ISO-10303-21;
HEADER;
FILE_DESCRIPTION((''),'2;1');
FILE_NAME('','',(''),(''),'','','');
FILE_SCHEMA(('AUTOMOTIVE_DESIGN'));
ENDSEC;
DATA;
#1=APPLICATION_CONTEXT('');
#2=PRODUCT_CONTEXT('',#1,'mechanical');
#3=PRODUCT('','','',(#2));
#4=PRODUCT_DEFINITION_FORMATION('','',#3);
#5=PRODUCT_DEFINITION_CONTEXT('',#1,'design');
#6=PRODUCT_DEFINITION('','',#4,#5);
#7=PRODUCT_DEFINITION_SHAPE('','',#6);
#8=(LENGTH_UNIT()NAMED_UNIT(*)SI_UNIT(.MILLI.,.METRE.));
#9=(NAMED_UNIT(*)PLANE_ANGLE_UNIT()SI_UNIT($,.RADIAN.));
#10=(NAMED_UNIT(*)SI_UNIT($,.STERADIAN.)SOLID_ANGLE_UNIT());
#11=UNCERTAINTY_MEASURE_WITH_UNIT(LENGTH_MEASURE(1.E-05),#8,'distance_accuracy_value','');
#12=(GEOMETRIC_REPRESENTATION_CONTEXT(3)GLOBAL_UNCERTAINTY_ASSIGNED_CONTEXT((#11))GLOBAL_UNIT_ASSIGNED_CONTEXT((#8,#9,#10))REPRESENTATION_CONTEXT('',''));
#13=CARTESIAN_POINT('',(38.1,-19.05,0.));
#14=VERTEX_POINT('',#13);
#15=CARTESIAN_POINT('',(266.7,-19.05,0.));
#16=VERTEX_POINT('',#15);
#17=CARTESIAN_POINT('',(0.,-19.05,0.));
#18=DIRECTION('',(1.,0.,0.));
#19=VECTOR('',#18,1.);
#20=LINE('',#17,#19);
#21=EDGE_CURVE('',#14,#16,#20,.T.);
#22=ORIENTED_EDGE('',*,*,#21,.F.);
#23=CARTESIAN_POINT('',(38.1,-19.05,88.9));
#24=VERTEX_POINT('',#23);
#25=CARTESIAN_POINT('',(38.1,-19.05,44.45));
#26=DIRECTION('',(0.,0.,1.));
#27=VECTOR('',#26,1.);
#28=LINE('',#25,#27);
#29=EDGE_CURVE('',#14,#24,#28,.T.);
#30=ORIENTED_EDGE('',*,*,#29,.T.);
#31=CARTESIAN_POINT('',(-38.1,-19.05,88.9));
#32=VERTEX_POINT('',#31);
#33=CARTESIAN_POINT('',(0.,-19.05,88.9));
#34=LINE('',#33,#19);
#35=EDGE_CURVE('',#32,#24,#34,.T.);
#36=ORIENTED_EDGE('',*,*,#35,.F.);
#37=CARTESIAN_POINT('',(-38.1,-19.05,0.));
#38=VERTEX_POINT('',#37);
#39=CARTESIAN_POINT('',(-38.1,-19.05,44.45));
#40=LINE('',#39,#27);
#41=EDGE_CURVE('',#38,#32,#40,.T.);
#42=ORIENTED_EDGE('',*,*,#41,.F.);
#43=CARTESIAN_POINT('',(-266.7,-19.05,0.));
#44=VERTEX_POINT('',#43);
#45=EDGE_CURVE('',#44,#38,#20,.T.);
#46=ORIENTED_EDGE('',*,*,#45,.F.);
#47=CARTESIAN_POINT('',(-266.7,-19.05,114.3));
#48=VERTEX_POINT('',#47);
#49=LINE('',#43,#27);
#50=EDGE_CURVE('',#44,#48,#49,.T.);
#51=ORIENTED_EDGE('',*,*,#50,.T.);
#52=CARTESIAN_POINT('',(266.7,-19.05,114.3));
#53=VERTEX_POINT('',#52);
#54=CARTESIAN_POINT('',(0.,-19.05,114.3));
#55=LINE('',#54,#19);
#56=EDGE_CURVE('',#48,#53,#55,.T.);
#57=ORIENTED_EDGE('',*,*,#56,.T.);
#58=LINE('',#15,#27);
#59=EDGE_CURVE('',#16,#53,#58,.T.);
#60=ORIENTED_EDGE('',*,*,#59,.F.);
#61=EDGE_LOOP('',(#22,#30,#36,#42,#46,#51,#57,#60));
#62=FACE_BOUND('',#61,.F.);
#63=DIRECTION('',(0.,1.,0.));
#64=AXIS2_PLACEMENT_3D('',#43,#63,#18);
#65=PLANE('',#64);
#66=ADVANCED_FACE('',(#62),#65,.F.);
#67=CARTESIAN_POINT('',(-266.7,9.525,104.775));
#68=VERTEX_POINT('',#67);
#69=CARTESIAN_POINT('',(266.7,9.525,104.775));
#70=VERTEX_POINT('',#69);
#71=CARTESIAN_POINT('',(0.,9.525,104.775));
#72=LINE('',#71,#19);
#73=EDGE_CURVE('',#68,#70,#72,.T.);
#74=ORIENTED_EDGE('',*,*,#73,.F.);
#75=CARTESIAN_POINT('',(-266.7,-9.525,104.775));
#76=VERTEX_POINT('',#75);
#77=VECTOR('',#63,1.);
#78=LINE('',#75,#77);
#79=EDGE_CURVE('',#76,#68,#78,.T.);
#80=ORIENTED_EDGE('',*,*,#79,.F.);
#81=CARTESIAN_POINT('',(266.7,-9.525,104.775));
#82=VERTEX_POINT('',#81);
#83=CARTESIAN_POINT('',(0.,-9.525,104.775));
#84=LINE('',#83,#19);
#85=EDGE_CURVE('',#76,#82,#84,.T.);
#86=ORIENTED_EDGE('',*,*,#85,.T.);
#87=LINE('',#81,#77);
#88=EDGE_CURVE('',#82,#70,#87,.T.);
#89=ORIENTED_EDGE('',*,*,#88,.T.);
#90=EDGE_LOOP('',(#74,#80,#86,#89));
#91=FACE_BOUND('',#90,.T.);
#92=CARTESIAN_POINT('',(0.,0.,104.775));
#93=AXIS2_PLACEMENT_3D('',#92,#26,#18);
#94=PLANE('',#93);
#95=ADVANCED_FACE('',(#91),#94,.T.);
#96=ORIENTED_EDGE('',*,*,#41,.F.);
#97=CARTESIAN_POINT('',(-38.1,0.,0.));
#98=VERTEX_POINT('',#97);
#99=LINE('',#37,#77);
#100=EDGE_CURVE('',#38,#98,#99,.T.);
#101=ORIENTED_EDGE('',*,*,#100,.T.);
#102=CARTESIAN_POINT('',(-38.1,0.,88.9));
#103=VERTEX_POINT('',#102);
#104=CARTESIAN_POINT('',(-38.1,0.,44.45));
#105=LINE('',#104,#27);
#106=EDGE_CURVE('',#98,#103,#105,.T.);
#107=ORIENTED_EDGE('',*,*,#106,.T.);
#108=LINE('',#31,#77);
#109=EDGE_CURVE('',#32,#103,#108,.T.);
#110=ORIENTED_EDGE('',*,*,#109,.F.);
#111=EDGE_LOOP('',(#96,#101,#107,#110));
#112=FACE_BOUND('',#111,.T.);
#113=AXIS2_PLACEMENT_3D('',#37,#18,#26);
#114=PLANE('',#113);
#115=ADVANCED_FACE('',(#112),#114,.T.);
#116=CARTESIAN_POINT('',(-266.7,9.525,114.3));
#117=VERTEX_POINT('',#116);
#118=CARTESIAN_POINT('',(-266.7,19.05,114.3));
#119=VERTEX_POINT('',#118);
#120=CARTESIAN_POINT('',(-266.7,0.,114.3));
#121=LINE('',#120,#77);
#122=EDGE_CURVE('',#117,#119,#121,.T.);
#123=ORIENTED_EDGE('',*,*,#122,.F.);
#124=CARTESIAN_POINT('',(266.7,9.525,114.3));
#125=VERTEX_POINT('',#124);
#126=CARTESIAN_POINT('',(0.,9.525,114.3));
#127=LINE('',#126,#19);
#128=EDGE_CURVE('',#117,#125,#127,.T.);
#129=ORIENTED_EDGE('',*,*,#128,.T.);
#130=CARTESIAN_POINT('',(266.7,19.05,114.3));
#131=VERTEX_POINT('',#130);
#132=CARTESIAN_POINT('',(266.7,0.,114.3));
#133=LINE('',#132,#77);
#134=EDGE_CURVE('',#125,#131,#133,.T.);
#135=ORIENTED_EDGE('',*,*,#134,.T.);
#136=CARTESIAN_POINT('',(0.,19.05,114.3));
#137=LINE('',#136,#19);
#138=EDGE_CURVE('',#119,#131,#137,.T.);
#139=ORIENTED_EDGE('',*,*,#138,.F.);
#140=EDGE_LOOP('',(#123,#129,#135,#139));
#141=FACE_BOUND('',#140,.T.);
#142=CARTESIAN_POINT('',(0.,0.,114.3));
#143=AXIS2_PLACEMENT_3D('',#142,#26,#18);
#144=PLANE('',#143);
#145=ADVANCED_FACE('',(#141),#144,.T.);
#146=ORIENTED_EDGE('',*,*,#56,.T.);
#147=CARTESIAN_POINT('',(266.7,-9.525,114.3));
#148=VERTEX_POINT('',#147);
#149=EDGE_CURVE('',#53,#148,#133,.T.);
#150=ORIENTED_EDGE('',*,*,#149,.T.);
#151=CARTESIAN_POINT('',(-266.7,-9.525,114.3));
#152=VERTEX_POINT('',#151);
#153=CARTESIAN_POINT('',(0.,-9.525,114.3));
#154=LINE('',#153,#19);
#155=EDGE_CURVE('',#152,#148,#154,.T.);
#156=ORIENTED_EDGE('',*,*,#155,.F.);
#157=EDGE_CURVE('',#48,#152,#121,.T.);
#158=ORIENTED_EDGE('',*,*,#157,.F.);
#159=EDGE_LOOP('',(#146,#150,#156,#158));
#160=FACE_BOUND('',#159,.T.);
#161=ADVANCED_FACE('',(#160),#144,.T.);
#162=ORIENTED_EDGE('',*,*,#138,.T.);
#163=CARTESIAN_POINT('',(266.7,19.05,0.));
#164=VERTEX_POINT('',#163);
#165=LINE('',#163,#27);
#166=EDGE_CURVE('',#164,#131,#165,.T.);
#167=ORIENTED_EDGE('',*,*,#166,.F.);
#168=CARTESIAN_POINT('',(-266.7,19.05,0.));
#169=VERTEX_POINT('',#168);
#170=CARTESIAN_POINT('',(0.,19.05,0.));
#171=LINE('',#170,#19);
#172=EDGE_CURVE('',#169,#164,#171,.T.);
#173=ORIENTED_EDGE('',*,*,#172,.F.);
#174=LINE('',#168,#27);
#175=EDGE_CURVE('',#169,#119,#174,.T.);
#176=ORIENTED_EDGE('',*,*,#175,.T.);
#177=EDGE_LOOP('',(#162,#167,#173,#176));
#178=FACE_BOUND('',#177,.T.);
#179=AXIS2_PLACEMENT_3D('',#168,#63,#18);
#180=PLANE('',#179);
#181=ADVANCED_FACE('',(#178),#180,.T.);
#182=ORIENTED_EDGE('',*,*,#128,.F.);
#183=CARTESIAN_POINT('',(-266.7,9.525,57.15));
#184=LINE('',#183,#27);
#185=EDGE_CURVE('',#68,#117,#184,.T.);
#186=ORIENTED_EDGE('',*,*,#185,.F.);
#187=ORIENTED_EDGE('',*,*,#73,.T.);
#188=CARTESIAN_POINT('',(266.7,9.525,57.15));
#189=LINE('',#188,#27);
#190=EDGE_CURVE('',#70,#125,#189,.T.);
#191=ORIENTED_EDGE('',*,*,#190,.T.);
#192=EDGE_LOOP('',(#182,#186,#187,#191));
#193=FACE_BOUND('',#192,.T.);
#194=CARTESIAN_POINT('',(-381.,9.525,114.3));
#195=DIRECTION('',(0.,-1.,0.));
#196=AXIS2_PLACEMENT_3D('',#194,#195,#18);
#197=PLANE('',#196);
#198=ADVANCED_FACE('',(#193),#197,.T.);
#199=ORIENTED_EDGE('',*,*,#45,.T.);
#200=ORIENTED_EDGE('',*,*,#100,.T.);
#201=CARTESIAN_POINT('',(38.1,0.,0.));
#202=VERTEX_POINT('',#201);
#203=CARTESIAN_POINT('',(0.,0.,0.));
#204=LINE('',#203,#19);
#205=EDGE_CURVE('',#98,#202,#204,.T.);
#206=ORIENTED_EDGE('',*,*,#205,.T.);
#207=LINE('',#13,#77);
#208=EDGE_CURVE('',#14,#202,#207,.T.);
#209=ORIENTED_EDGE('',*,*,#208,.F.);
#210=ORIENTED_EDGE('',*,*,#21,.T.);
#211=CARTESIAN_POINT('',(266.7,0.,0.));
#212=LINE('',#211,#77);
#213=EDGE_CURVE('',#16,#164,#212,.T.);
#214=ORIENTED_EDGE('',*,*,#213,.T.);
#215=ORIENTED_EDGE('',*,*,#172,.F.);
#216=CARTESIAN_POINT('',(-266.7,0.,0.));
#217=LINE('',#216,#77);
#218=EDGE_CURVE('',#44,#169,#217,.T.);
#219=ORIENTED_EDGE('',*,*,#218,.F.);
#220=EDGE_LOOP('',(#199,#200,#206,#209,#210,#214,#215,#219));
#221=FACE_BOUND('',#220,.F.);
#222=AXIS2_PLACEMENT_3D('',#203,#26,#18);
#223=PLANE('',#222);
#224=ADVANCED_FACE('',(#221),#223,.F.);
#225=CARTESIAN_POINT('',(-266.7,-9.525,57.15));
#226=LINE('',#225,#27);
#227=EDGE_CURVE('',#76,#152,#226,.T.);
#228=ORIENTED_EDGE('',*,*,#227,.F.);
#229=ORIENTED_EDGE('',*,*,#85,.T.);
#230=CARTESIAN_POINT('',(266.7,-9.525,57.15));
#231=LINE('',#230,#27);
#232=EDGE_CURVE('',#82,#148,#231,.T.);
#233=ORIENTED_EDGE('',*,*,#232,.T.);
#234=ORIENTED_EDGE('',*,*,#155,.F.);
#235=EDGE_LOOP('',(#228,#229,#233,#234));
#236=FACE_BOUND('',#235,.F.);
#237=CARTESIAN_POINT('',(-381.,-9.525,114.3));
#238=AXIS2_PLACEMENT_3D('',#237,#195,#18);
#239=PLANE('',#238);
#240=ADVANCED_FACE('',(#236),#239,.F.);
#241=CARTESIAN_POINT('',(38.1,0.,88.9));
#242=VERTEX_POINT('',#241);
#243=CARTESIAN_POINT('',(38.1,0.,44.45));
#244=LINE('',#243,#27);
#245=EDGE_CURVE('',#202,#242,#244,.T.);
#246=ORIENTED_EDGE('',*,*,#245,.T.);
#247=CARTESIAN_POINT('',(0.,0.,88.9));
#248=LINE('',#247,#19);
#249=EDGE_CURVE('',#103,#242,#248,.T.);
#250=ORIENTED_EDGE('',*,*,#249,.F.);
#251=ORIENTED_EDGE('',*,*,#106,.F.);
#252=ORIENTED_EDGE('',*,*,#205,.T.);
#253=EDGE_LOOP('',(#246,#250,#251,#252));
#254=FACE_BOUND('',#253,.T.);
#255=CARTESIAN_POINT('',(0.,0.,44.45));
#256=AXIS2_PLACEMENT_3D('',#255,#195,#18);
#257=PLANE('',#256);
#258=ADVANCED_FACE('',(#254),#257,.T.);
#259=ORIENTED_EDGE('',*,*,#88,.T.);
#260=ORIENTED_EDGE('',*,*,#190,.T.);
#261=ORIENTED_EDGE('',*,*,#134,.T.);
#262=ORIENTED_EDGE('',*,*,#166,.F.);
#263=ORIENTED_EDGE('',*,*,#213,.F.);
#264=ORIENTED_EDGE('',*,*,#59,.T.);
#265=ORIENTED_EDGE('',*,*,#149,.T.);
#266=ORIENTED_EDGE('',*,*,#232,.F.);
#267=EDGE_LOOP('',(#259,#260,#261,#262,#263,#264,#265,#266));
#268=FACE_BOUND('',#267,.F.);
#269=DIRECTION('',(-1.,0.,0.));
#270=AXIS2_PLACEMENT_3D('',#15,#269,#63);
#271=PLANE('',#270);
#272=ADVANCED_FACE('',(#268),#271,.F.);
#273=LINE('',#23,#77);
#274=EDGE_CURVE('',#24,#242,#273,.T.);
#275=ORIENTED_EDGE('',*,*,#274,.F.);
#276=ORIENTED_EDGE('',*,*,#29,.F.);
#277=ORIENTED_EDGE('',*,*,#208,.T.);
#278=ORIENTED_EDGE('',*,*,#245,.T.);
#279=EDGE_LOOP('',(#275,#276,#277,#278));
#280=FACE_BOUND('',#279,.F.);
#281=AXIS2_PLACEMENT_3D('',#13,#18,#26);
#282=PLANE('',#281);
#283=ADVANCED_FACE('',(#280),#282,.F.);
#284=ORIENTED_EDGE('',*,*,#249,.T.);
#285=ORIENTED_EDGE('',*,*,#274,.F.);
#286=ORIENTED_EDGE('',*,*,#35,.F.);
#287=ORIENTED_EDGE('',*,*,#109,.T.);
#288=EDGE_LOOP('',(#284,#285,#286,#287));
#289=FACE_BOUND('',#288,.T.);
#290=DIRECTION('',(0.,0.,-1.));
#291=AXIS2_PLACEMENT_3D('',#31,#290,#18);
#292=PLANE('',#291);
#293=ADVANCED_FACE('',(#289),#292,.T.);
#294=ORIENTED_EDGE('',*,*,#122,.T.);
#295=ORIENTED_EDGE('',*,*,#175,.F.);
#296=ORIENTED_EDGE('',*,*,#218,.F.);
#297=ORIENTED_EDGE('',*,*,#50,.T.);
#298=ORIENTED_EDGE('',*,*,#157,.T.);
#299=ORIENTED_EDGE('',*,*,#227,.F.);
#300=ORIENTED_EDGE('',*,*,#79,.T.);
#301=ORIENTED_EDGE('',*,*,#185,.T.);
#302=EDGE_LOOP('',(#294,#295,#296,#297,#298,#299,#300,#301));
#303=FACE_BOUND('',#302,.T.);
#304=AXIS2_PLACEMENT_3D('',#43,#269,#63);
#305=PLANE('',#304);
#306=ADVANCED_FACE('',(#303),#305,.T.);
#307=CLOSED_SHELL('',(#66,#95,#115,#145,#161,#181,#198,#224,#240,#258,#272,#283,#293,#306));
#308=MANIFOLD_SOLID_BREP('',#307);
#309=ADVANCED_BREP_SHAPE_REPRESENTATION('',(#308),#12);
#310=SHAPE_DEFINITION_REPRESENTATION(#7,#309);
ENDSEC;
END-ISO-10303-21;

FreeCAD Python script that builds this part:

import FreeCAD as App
import Part
import Sketcher
from FreeCAD import Vector
Q = App.Units.Quantity

doc = App.newDocument("Part")
params = doc.addObject("Spreadsheet::Sheet", "Params")
for row, (alias, value) in enumerate([
    ("sketch1_width", "21 in"),
    ("sketch1_height", "1.5 in"),
    ("pad1_length", "4.5 in"),
    ("sketch2_width", "30 in"),
    ("sketch2_height", "0.75 in"),
    ("pocket1_length", "0.375 in"),
    ("sketch3_width", "3 in"),
    ("sketch3_height", "3.5 in"),
    ("pocket2_length", "0.75 in"),
], start=1):
    params.set(f"A{row}", alias)
    params.set(f"B{row}", "=" + value)
    params.setAlias(f"B{row}", alias)

body = doc.addObject("PartDesign::Body", "Body")

# Sketch on XY plane
sketch1 = body.newObject("Sketcher::SketchObject", "Sketch")
sketch1.AttachmentSupport = (doc.getObject("XY_Plane"), [""])
sketch1.MapMode = "FlatFace"
sketch1.addGeometry(Part.LineSegment(Vector(-267, 19, 0), Vector(-267, -19, 0)), False)
sketch1.addGeometry(Part.LineSegment(Vector(-267, -19, 0), Vector(267, -19, 0)), False)
sketch1.addGeometry(Part.LineSegment(Vector(267, -19, 0), Vector(267, 19, 0)), False)
sketch1.addGeometry(Part.LineSegment(Vector(267, 19, 0), Vector(-267, 19, 0)), False)
sketch1.addConstraint(Sketcher.Constraint("Coincident", 0, 2, 1, 1))
sketch1.addConstraint(Sketcher.Constraint("Coincident", 1, 2, 2, 1))
sketch1.addConstraint(Sketcher.Constraint("Coincident", 2, 2, 3, 1))
sketch1.addConstraint(Sketcher.Constraint("Coincident", 3, 2, 0, 1))
sketch1.addConstraint(Sketcher.Constraint("Vertical", 0))
sketch1.addConstraint(Sketcher.Constraint("Horizontal", 1))
sketch1.addConstraint(Sketcher.Constraint("Vertical", 2))
sketch1.addConstraint(Sketcher.Constraint("Horizontal", 3))
sketch1.addConstraint(Sketcher.Constraint("Symmetric", 0, 2, 2, 2, -1, 1))
sketch1.addConstraint(Sketcher.Constraint("DistanceX", 1, 1, 1, 2, Q("21 in")))
sketch1.addConstraint(Sketcher.Constraint("DistanceY", 0, 2, 0, 1, Q("1.5 in")))
sketch1.setExpression("Constraints[9]", "Params.sketch1_width")
sketch1.setExpression("Constraints[10]", "Params.sketch1_height")
pad1 = body.newObject("PartDesign::Pad", "Pad")
pad1.Profile = sketch1
pad1.setExpression("Length", "Params.pad1_length")

# Sketch on XY plane
sketch2 = body.newObject("Sketcher::SketchObject", "Sketch001")
sketch2.AttachmentSupport = (doc.getObject("XY_Plane"), [""])
sketch2.MapMode = "FlatFace"
sketch2.AttachmentOffset = App.Placement(Vector(0, 0, 4.5 * 25.4), App.Rotation())
sketch2.addGeometry(Part.LineSegment(Vector(-381, 10, 0), Vector(-381, -10, 0)), False)
sketch2.addGeometry(Part.LineSegment(Vector(-381, -10, 0), Vector(381, -10, 0)), False)
sketch2.addGeometry(Part.LineSegment(Vector(381, -10, 0), Vector(381, 10, 0)), False)
sketch2.addGeometry(Part.LineSegment(Vector(381, 10, 0), Vector(-381, 10, 0)), False)
sketch2.addConstraint(Sketcher.Constraint("Coincident", 0, 2, 1, 1))
sketch2.addConstraint(Sketcher.Constraint("Coincident", 1, 2, 2, 1))
sketch2.addConstraint(Sketcher.Constraint("Coincident", 2, 2, 3, 1))
sketch2.addConstraint(Sketcher.Constraint("Coincident", 3, 2, 0, 1))
sketch2.addConstraint(Sketcher.Constraint("Vertical", 0))
sketch2.addConstraint(Sketcher.Constraint("Horizontal", 1))
sketch2.addConstraint(Sketcher.Constraint("Vertical", 2))
sketch2.addConstraint(Sketcher.Constraint("Horizontal", 3))
sketch2.addConstraint(Sketcher.Constraint("Symmetric", 0, 2, 2, 2, -1, 1))
sketch2.addConstraint(Sketcher.Constraint("DistanceX", 1, 1, 1, 2, Q("30 in")))
sketch2.addConstraint(Sketcher.Constraint("DistanceY", 0, 2, 0, 1, Q("0.75 in")))
sketch2.setExpression("Constraints[9]", "Params.sketch2_width")
sketch2.setExpression("Constraints[10]", "Params.sketch2_height")
pocket1 = body.newObject("PartDesign::Pocket", "Pocket")
pocket1.Profile = sketch2
pocket1.setExpression("Length", "Params.pocket1_length")

# Sketch on XZ plane
sketch3 = body.newObject("Sketcher::SketchObject", "Sketch002")
sketch3.AttachmentSupport = (doc.getObject("XZ_Plane"), [""])
sketch3.MapMode = "FlatFace"
sketch3.AttachmentOffset = App.Placement(Vector(0, 0, 0.75 * 25.4), App.Rotation())
sketch3.addGeometry(Part.LineSegment(Vector(-38, 89, 0), Vector(-38, 0, 0)), False)
sketch3.addGeometry(Part.LineSegment(Vector(-38, 0, 0), Vector(38, 0, 0)), False)
sketch3.addGeometry(Part.LineSegment(Vector(38, 0, 0), Vector(38, 89, 0)), False)
sketch3.addGeometry(Part.LineSegment(Vector(38, 89, 0), Vector(-38, 89, 0)), False)
sketch3.addConstraint(Sketcher.Constraint("Coincident", 0, 2, 1, 1))
sketch3.addConstraint(Sketcher.Constraint("Coincident", 1, 2, 2, 1))
sketch3.addConstraint(Sketcher.Constraint("Coincident", 2, 2, 3, 1))
sketch3.addConstraint(Sketcher.Constraint("Coincident", 3, 2, 0, 1))
sketch3.addConstraint(Sketcher.Constraint("Vertical", 0))
sketch3.addConstraint(Sketcher.Constraint("Horizontal", 1))
sketch3.addConstraint(Sketcher.Constraint("Vertical", 2))
sketch3.addConstraint(Sketcher.Constraint("Horizontal", 3))
sketch3.addConstraint(Sketcher.Constraint("Symmetric", 0, 2, 1, 2, -1, 1))
sketch3.addConstraint(Sketcher.Constraint("DistanceX", 1, 1, 1, 2, Q("3 in")))
sketch3.addConstraint(Sketcher.Constraint("DistanceY", 0, 2, 0, 1, Q("3.5 in")))
sketch3.setExpression("Constraints[9]", "Params.sketch3_width")
sketch3.setExpression("Constraints[10]", "Params.sketch3_height")
pocket2 = body.newObject("PartDesign::Pocket", "Pocket001")
pocket2.Profile = sketch3
pocket2.setExpression("Length", "Params.pocket2_length")

doc.recompute()
